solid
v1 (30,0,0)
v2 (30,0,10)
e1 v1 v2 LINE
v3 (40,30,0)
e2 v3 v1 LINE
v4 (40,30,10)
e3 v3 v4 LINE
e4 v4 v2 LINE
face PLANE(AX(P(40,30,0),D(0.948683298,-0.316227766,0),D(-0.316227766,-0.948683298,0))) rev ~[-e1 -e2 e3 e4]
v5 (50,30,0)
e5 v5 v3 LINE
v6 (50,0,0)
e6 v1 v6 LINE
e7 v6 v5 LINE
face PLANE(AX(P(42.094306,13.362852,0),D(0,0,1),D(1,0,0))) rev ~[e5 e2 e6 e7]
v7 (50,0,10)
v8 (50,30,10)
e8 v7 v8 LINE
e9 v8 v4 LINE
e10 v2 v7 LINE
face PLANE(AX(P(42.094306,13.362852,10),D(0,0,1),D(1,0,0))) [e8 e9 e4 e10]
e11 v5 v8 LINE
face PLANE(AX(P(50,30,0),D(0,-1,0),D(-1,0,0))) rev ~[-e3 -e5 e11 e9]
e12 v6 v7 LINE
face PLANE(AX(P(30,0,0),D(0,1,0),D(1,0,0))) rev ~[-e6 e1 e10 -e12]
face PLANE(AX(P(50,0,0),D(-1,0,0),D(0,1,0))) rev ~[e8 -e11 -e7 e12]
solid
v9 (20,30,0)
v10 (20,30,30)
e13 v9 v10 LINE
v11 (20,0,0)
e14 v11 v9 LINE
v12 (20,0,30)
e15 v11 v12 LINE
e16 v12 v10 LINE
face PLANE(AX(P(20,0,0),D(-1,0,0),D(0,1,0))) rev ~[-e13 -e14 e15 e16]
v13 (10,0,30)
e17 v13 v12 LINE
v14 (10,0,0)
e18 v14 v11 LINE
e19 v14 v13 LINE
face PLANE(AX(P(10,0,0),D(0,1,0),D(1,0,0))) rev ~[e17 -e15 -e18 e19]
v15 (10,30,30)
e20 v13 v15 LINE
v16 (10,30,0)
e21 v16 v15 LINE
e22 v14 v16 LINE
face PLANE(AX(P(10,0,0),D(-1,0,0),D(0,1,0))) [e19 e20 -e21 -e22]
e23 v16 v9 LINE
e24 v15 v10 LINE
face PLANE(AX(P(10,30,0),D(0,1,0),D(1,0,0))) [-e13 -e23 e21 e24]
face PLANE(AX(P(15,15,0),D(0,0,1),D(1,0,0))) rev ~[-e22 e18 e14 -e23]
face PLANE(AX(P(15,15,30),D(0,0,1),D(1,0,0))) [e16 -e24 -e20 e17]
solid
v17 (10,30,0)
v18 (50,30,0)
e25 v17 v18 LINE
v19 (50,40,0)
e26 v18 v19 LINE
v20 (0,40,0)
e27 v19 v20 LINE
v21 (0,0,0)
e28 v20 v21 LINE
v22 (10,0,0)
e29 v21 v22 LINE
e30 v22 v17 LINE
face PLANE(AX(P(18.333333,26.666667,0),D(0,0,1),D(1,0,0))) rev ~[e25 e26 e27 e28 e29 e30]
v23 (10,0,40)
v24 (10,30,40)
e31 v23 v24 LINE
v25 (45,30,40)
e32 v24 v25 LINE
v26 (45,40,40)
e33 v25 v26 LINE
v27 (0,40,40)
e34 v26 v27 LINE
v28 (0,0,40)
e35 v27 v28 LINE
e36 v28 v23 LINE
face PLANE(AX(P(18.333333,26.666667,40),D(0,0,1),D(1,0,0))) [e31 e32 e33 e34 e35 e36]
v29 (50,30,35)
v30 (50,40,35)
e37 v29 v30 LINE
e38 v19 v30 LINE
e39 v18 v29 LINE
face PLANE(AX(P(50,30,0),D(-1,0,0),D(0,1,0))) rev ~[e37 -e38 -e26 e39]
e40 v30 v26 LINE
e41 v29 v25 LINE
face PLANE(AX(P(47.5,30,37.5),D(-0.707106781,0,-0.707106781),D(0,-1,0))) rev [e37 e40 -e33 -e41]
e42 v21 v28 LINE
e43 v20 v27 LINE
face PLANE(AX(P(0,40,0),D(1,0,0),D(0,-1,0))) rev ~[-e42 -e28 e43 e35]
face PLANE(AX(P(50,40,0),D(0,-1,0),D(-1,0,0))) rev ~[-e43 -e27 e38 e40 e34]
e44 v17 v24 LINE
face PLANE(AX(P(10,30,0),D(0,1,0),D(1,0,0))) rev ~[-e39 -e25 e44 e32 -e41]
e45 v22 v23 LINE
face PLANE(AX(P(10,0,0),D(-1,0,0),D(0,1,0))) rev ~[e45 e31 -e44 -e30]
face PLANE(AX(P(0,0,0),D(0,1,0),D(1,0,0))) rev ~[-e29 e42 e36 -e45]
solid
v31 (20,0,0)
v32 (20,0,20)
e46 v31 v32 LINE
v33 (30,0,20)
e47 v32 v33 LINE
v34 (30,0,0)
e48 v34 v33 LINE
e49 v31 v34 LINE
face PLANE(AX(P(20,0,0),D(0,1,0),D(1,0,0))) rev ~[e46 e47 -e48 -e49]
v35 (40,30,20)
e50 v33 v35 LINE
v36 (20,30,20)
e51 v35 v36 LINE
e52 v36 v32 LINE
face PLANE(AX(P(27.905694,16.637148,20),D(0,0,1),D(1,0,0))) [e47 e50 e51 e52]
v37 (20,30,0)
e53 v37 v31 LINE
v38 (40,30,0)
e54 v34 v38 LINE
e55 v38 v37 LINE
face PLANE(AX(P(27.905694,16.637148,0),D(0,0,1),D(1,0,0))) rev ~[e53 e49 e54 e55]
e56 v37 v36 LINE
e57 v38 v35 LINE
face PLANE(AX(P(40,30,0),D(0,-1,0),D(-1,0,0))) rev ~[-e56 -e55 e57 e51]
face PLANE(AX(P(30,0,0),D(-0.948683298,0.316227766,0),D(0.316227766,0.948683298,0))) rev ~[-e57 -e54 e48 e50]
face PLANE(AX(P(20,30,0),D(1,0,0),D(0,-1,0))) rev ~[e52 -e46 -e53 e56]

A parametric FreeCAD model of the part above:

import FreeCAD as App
import Part
import Sketcher

V = App.Vector


def edges_at(feature, points):
    """Names of the edges that pass closest to the given points."""
    edges = feature.Shape.Edges
    near = lambda p: min(range(len(edges)), key=lambda i: edges[i].distToShape(Part.Vertex(*p))[0])
    return sorted({f"Edge{near(p) + 1}" for p in points})


def add_polygon(sketch, points):
    """Adds a closed chain of lines whose ends are joined by coincident constraints."""
    first, n = sketch.GeometryCount, len(points)
    for a, b in zip(points, points[1:] + points[:1]):
        sketch.addGeometry(Part.LineSegment(App.Vector(*a, 0), App.Vector(*b, 0)), False)
    for i in range(n):
        sketch.addConstraint(Sketcher.Constraint("Coincident", first + i, 2, first + (i + 1) % n, 1))

doc = App.newDocument("Part")
params = doc.addObject("Spreadsheet::Sheet", "Params")
for row, (alias, value) in enumerate([
    ("sketch1_width", "10 mm"),
    ("sketch1_width2", "40 mm"),
    ("pad1_length", "40 mm"),
    ("chamfer_size", "5 mm"),
    ("sketch2_width", "10 mm"),
    ("sketch2_height", "30 mm"),
    ("pad2_length", "30 mm"),
    ("sketch3_width", "10 mm"),
    ("sketch3_width2", "20 mm"),
    ("sketch3_height", "30 mm"),
    ("pad3_length", "20 mm"),
    ("sketch4_width", "20 mm"),
    ("sketch4_width2", "10 mm"),
    ("sketch4_height", "30 mm"),
    ("pad4_length", "10 mm"),
], start=1):
    params.set(f"A{row}", alias)
    params.set(f"B{row}", "=" + value)
    params.setAlias(f"B{row}", alias)

body = doc.addObject("PartDesign::Body", "Body")

# Sketch on XY plane
sketch1 = body.newObject("Sketcher::SketchObject", "Sketch")
sketch1.AttachmentSupport = (doc.getObject("XY_Plane"), [""])
sketch1.MapMode = "FlatFace"
add_polygon(sketch1, [(0, 40), (0, 0), (10, 0), (10, 30), (50, 30), (50, 40)])  # lines 0-5
sketch1.addConstraint([
    Sketcher.Constraint("Vertical", 0),
    Sketcher.Constraint("Horizontal", 1),
    Sketcher.Constraint("Vertical", 2),
    Sketcher.Constraint("Horizontal", 3),
    Sketcher.Constraint("Vertical", 4),
    Sketcher.Constraint("Horizontal", 5),
    Sketcher.Constraint("Coincident", 0, 2, -1, 1),
    Sketcher.Constraint("Equal", 3, 0),
    Sketcher.Constraint("Equal", 1, 4),
    Sketcher.Constraint("DistanceX", 1, 1, 1, 2, 10.0),
    Sketcher.Constraint("DistanceX", 3, 1, 3, 2, 40.0),
])
sketch1.setExpression("Constraints[15]", "Params.sketch1_width")
sketch1.setExpression("Constraints[16]", "Params.sketch1_width2")
pad1 = body.newObject("PartDesign::Pad", "Pad")
pad1.Profile = sketch1
pad1.setExpression("Length", "Params.pad1_length")
doc.recompute()

chamfer = body.newObject("PartDesign::Chamfer", "Chamfer")
chamfer.Base = (pad1, edges_at(pad1, [(50, 35, 40)]))
chamfer.setExpression("Size", "Params.chamfer_size")
body2 = doc.addObject("PartDesign::Body", "Body001")

# Sketch on XY plane
sketch2 = body2.newObject("Sketcher::SketchObject", "Sketch001")
sketch2.AttachmentSupport = (doc.getObject("XY_Plane001"), [""])
sketch2.MapMode = "FlatFace"
add_polygon(sketch2, [(10, 30), (10, 0), (20, 0), (20, 30)])  # lines 0-3
sketch2.addConstraint([
    Sketcher.Constraint("Vertical", 0),
    Sketcher.Constraint("Horizontal", 1),
    Sketcher.Constraint("Vertical", 2),
    Sketcher.Constraint("Horizontal", 3),
    Sketcher.Constraint("PointOnObject", 0, 2, -1),
    Sketcher.Constraint("DistanceX", 1, 1, 1, 2, 10.0),
    Sketcher.Constraint("DistanceY", 0, 2, 0, 1, 30.0),
    Sketcher.Constraint("DistanceX", -1, 1, 0, 2, 10.0),
])
sketch2.setExpression("Constraints[9]", "Params.sketch2_width")
sketch2.setExpression("Constraints[10]", "Params.sketch2_height")
pad2 = body2.newObject("PartDesign::Pad", "Pad001")
pad2.Profile = sketch2
pad2.setExpression("Length", "Params.pad2_length")
body3 = doc.addObject("PartDesign::Body", "Body002")

# Sketch on XY plane
sketch3 = body3.newObject("Sketcher::SketchObject", "Sketch002")
sketch3.AttachmentSupport = (doc.getObject("XY_Plane002"), [""])
sketch3.MapMode = "FlatFace"
add_polygon(sketch3, [(20, 30), (20, 0), (30, 0), (40, 30)])  # lines 0-3
sketch3.addConstraint([
    Sketcher.Constraint("Vertical", 0),
    Sketcher.Constraint("Horizontal", 1),
    Sketcher.Constraint("Horizontal", 3),
    Sketcher.Constraint("PointOnObject", 0, 2, -1),
    Sketcher.Constraint("DistanceX", 1, 1, 1, 2, 10.0),
    Sketcher.Constraint("DistanceX", 3, 2, 3, 1, 20.0),
    Sketcher.Constraint("DistanceY", 0, 2, 0, 1, 30.0),
    Sketcher.Constraint("DistanceX", -1, 1, 0, 2, 20.0),
])
sketch3.setExpression("Constraints[8]", "Params.sketch3_width")
sketch3.setExpression("Constraints[9]", "Params.sketch3_width2")
sketch3.setExpression("Constraints[10]", "Params.sketch3_height")
pad3 = body3.newObject("PartDesign::Pad", "Pad002")
pad3.Profile = sketch3
pad3.setExpression("Length", "Params.pad3_length")
body4 = doc.addObject("PartDesign::Body", "Body003")

# Sketch on XY plane
sketch4 = body4.newObject("Sketcher::SketchObject", "Sketch003")
sketch4.AttachmentSupport = (doc.getObject("XY_Plane003"), [""])
sketch4.MapMode = "FlatFace"
add_polygon(sketch4, [(40, 30), (30, 0), (50, 0), (50, 30)])  # lines 0-3
sketch4.addConstraint([
    Sketcher.Constraint("Horizontal", 1),
    Sketcher.Constraint("Vertical", 2),
    Sketcher.Constraint("Horizontal", 3),
    Sketcher.Constraint("PointOnObject", 0, 2, -1),
    Sketcher.Constraint("DistanceX", 1, 1, 1, 2, 20.0),
    Sketcher.Constraint("DistanceX", 3, 2, 3, 1, 10.0),
    Sketcher.Constraint("DistanceY", 2, 1, 2, 2, 30.0),
    Sketcher.Constraint("DistanceX", -1, 1, 0, 2, 30.0),
])
sketch4.setExpression("Constraints[8]", "Params.sketch4_width")
sketch4.setExpression("Constraints[9]", "Params.sketch4_width2")
sketch4.setExpression("Constraints[10]", "Params.sketch4_height")
pad4 = body4.newObject("PartDesign::Pad", "Pad003")
pad4.Profile = sketch4
pad4.setExpression("Length", "Params.pad4_length")

doc.recompute()
